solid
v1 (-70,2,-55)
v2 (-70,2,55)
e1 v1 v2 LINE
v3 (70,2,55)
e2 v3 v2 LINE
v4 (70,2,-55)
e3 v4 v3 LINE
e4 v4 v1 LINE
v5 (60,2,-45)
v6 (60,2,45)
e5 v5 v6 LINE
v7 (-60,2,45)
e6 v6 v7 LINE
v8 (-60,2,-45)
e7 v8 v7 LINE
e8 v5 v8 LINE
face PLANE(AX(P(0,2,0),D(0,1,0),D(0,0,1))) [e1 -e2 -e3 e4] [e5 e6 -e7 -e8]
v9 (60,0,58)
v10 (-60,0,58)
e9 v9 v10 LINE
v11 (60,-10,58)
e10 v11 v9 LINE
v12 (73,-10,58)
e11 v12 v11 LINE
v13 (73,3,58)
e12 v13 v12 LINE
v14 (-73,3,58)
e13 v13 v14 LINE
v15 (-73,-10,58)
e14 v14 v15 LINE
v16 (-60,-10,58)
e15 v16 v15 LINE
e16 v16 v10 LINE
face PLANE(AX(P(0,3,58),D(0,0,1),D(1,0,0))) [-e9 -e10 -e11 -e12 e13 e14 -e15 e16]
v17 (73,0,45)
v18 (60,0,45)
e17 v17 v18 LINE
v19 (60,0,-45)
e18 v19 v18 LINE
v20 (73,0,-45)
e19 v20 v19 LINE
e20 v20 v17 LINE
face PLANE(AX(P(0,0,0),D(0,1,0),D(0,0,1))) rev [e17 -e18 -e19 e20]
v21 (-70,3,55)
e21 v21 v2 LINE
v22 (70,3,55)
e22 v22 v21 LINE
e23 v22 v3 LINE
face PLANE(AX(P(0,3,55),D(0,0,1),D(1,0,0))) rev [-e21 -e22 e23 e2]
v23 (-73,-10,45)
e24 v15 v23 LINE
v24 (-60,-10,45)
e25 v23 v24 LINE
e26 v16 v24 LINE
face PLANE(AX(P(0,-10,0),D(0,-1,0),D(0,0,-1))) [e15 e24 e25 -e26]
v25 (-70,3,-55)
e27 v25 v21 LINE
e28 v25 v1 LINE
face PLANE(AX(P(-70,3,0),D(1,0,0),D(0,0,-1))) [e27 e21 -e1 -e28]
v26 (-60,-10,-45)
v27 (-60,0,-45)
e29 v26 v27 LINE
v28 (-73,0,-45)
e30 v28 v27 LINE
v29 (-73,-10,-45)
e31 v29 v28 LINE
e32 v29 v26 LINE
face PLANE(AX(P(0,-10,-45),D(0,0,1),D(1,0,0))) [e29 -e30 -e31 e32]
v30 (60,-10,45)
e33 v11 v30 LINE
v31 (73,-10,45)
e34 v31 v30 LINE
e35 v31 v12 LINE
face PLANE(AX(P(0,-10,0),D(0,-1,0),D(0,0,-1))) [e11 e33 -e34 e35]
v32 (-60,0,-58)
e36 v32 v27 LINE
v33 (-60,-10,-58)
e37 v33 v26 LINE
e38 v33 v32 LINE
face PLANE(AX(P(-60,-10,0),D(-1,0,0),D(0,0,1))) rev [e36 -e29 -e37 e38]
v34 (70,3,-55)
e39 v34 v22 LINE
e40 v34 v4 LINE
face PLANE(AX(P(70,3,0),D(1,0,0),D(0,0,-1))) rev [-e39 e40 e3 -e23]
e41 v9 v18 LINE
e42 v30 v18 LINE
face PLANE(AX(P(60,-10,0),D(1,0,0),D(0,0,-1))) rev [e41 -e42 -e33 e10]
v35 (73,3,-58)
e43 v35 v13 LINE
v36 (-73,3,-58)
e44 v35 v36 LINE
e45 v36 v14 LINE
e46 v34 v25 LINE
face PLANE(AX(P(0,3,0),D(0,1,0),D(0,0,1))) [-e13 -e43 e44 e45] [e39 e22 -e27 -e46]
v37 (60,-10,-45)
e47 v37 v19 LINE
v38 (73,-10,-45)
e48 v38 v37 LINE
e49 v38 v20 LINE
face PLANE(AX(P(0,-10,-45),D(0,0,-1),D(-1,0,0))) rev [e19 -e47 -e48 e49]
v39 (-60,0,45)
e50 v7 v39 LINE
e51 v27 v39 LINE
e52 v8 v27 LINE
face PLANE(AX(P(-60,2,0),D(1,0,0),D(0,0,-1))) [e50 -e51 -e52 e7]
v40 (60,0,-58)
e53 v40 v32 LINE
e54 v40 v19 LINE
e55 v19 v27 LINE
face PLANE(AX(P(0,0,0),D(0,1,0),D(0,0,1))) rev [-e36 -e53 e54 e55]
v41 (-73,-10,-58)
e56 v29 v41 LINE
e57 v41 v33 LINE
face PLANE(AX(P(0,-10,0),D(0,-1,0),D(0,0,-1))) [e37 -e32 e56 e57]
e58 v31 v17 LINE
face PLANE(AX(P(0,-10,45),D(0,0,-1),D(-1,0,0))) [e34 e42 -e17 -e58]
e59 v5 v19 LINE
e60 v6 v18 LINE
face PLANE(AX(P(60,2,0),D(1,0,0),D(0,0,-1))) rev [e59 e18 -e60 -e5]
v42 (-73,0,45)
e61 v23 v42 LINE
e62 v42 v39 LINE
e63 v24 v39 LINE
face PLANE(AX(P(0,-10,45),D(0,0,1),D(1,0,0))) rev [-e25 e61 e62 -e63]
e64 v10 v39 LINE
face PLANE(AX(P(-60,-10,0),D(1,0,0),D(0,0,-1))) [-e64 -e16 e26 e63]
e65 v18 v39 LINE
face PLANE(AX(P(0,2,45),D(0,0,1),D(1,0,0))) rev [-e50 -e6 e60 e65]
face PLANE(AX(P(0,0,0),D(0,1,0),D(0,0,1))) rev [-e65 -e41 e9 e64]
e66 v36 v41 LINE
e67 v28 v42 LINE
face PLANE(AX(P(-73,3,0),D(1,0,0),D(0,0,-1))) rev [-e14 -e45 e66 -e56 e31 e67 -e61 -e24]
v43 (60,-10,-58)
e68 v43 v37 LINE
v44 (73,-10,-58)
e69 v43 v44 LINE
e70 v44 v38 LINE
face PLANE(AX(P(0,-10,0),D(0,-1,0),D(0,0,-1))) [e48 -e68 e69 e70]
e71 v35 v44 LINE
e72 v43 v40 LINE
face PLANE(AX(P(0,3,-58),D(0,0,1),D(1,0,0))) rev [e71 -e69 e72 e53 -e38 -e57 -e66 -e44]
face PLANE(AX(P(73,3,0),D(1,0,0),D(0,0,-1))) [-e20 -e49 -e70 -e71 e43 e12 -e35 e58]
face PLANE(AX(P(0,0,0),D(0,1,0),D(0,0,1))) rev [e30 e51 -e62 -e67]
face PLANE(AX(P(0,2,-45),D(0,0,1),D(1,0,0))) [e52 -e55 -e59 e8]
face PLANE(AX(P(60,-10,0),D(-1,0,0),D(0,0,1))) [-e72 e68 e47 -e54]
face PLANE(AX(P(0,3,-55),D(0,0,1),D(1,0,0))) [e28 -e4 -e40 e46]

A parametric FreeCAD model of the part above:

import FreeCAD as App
import Part
import Sketcher
from FreeCAD import Vector


def add_polygon(sketch, points):
    """Adds a closed chain of lines whose ends are joined by coincident constraints."""
    first, n = sketch.GeometryCount, len(points)
    for a, b in zip(points, points[1:] + points[:1]):
        sketch.addGeometry(Part.LineSegment(App.Vector(*a, 0), App.Vector(*b, 0)), False)
    for i in range(n):
        sketch.addConstraint(Sketcher.Constraint("Coincident", first + i, 2, first + (i + 1) % n, 1))

doc = App.newDocument("Part")
body = doc.addObject("PartDesign::Body", "Body")

# Sketch on XZ plane
sketch1 = body.newObject("Sketcher::SketchObject", "Sketch")
sketch1.AttachmentSupport = (doc.getObject("XZ_Plane"), [""])
sketch1.MapMode = "FlatFace"
add_polygon(sketch1, [(-73, -58), (-73, 58), (73, 58), (73, -58)])  # lines 0-3
add_polygon(sketch1, [(70, 55), (-70, 55), (-70, -55), (70, -55)])  # lines 4-7
sketch1.addConstraint(Sketcher.Constraint("Vertical", 0))
sketch1.addConstraint(Sketcher.Constraint("Horizontal", 1))
sketch1.addConstraint(Sketcher.Constraint("Vertical", 2))
sketch1.addConstraint(Sketcher.Constraint("Horizontal", 3))
sketch1.addConstraint(Sketcher.Constraint("Horizontal", 4))
sketch1.addConstraint(Sketcher.Constraint("Vertical", 5))
sketch1.addConstraint(Sketcher.Constraint("Horizontal", 6))
sketch1.addConstraint(Sketcher.Constraint("Vertical", 7))
sketch1.addConstraint(Sketcher.Constraint("Symmetric", 0, 2, 2, 2, -1, 1))
sketch1.addConstraint(Sketcher.Constraint("Symmetric", 4, 2, 6, 2, -1, 1))
sketch1.addConstraint(Sketcher.Constraint("DistanceX", 1, 1, 1, 2, 146.0))
sketch1.addConstraint(Sketcher.Constraint("DistanceX", 4, 2, 4, 1, 140.0))
sketch1.addConstraint(Sketcher.Constraint("DistanceY", 0, 1, 0, 2, 116.0))
sketch1.addConstraint(Sketcher.Constraint("DistanceY", 5, 2, 5, 1, 110.0))
pad1 = body.newObject("PartDesign::Pad", "Pad")
pad1.Profile = sketch1
pad1.Length = 3
pad1.Reversed = True

# Sketch on XZ plane
sketch2 = body.newObject("Sketcher::SketchObject", "Sketch001")
sketch2.AttachmentSupport = (doc.getObject("XZ_Plane"), [""])
sketch2.MapMode = "FlatFace"
add_polygon(sketch2, [(-70, -55), (-70, 55), (70, 55), (70, -55)])  # lines 0-3
add_polygon(sketch2, [(60, 45), (-60, 45), (-60, -45), (60, -45)])  # lines 4-7
sketch2.addConstraint(Sketcher.Constraint("Vertical", 0))
sketch2.addConstraint(Sketcher.Constraint("Horizontal", 1))
sketch2.addConstraint(Sketcher.Constraint("Vertical", 2))
sketch2.addConstraint(Sketcher.Constraint("Horizontal", 3))
sketch2.addConstraint(Sketcher.Constraint("Horizontal", 4))
sketch2.addConstraint(Sketcher.Constraint("Vertical", 5))
sketch2.addConstraint(Sketcher.Constraint("Horizontal", 6))
sketch2.addConstraint(Sketcher.Constraint("Vertical", 7))
sketch2.addConstraint(Sketcher.Constraint("Symmetric", 0, 2, 2, 2, -1, 1))
sketch2.addConstraint(Sketcher.Constraint("Symmetric", 4, 2, 6, 2, -1, 1))
sketch2.addConstraint(Sketcher.Constraint("DistanceX", 1, 1, 1, 2, 140.0))
sketch2.addConstraint(Sketcher.Constraint("DistanceX", 4, 2, 4, 1, 120.0))
sketch2.addConstraint(Sketcher.Constraint("DistanceY", 0, 1, 0, 2, 110.0))
sketch2.addConstraint(Sketcher.Constraint("DistanceY", 5, 2, 5, 1, 90.0))
pad2 = body.newObject("PartDesign::Pad", "Pad001")
pad2.Profile = sketch2
pad2.Length = 2
pad2.Reversed = True

# Sketch on XZ plane
sketch3 = body.newObject("Sketcher::SketchObject", "Sketch002")
sketch3.AttachmentSupport = (doc.getObject("XZ_Plane"), [""])
sketch3.MapMode = "FlatFace"
add_polygon(sketch3, [(-73, 58), (-73, 45), (-60, 45), (-60, 58)])  # lines 0-3
add_polygon(sketch3, [(-73, -45), (-73, -58), (-60, -58), (-60, -45)])  # lines 4-7
add_polygon(sketch3, [(60, -45), (60, -58), (73, -58), (73, -45)])  # lines 8-11
add_polygon(sketch3, [(60, 58), (60, 45), (73, 45), (73, 58)])  # lines 12-15
sketch3.addConstraint(Sketcher.Constraint("Vertical", 0))
sketch3.addConstraint(Sketcher.Constraint("Horizontal", 1))
sketch3.addConstraint(Sketcher.Constraint("Vertical", 2))
sketch3.addConstraint(Sketcher.Constraint("Horizontal", 3))
sketch3.addConstraint(Sketcher.Constraint("Vertical", 4))
sketch3.addConstraint(Sketcher.Constraint("Horizontal", 5))
sketch3.addConstraint(Sketcher.Constraint("Vertical", 6))
sketch3.addConstraint(Sketcher.Constraint("Horizontal", 7))
sketch3.addConstraint(Sketcher.Constraint("Vertical", 8))
sketch3.addConstraint(Sketcher.Constraint("Horizontal", 9))
sketch3.addConstraint(Sketcher.Constraint("Vertical", 10))
sketch3.addConstraint(Sketcher.Constraint("Horizontal", 11))
sketch3.addConstraint(Sketcher.Constraint("Vertical", 12))
sketch3.addConstraint(Sketcher.Constraint("Horizontal", 13))
sketch3.addConstraint(Sketcher.Constraint("Vertical", 14))
sketch3.addConstraint(Sketcher.Constraint("Horizontal", 15))
sketch3.addConstraint(Sketcher.Constraint("Symmetric", 2, 2, 8, 2, -1, 1))
sketch3.addConstraint(Sketcher.Constraint("Symmetric", 0, 2, 10, 2, -1, 1))
sketch3.addConstraint(Sketcher.Constraint("Symmetric", 6, 2, 12, 2, -1, 1))
sketch3.addConstraint(Sketcher.Constraint("Symmetric", 4, 2, 14, 2, -1, 1))
sketch3.addConstraint(Sketcher.Constraint("Symmetric", 5, 2, 8, 2, -2))
sketch3.addConstraint(Sketcher.Constraint("Symmetric", 7, 2, 10, 2, -2))
sketch3.addConstraint(Sketcher.Constraint("Equal", 15, 0))
sketch3.addConstraint(Sketcher.Constraint("DistanceX", 1, 1, 1, 2, 13.0))
sketch3.addConstraint(Sketcher.Constraint("DistanceX", 0, 2, -1, 1, 73.0))
sketch3.addConstraint(Sketcher.Constraint("DistanceY", -1, 1, 0, 2, 45.0))
pad3 = body.newObject("PartDesign::Pad", "Pad002")
pad3.Profile = sketch3
pad3.Length = 10

doc.recompute()
